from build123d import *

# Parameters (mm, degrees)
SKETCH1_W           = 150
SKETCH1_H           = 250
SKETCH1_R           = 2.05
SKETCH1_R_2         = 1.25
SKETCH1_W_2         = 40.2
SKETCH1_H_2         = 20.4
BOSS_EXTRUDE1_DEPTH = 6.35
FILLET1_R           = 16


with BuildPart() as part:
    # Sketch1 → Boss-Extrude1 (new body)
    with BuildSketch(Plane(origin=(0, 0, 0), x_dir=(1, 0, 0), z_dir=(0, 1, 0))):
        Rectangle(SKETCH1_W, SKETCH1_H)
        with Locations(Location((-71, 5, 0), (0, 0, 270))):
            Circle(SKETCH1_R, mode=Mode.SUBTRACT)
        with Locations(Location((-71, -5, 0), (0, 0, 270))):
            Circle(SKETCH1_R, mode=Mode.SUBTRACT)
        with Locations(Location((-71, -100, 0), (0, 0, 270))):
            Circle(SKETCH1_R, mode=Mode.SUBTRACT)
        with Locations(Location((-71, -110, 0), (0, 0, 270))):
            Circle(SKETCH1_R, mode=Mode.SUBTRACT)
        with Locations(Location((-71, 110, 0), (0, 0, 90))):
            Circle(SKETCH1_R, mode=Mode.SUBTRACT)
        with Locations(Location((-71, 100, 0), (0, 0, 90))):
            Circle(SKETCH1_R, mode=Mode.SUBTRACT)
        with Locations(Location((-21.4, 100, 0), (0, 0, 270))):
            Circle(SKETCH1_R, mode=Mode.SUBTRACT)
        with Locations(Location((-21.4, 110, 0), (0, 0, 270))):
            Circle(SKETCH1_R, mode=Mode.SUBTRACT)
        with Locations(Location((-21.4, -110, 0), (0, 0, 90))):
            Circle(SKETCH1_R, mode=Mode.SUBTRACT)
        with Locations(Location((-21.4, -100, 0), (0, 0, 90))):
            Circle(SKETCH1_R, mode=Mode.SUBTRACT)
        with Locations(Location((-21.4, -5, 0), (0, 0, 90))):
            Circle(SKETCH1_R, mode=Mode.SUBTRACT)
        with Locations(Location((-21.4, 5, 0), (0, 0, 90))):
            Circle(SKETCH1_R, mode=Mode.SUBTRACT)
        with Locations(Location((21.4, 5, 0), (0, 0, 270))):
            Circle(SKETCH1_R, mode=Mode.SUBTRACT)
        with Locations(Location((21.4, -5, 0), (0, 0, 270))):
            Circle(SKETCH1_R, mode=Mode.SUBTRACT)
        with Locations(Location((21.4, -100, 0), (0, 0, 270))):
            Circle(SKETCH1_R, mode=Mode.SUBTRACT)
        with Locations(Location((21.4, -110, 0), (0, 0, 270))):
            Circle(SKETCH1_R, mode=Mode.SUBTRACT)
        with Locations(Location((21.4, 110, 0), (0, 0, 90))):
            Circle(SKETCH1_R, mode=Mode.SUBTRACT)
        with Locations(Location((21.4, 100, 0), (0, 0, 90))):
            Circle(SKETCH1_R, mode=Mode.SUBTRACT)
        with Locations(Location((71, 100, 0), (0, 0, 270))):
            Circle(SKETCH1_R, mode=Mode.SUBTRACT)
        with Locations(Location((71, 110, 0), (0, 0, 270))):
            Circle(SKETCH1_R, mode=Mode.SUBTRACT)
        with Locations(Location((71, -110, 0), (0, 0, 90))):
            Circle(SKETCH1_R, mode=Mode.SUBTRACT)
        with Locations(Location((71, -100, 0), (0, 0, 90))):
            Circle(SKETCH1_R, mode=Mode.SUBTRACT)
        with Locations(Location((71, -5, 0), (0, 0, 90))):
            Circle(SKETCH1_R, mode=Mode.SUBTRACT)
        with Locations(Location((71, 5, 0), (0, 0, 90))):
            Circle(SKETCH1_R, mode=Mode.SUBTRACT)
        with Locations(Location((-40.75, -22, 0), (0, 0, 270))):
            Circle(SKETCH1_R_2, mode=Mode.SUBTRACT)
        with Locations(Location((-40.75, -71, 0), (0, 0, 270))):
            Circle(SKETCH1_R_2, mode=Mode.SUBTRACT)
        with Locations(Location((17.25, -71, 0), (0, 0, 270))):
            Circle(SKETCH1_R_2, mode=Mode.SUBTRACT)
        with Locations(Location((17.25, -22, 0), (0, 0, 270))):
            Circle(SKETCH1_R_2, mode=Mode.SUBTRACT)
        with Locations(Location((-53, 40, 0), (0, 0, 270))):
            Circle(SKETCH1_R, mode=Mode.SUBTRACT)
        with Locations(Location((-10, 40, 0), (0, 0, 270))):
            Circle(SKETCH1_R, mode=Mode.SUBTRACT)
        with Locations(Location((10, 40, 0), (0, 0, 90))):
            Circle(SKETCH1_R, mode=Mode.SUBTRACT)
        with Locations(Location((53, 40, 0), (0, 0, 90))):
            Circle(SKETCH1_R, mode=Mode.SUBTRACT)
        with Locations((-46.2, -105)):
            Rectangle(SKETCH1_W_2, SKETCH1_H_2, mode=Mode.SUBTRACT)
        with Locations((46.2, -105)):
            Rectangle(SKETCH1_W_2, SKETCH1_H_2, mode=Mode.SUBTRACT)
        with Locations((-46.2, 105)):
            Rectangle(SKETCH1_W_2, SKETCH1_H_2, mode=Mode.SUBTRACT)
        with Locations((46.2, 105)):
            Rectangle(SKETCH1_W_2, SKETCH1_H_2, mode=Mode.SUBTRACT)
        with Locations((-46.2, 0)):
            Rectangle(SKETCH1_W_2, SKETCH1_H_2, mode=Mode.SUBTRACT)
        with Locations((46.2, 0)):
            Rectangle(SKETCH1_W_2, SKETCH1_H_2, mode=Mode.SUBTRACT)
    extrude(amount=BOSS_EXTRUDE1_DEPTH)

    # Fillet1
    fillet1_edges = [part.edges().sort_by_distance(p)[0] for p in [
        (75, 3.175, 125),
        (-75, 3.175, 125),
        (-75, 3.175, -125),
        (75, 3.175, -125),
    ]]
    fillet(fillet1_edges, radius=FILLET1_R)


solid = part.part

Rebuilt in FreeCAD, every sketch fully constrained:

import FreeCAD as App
import Part
import Sketcher

V = App.Vector


def edges_at(feature, points):
    """Names of the edges that pass closest to the given points."""
    edges = feature.Shape.Edges
    near = lambda p: min(range(len(edges)), key=lambda i: edges[i].distToShape(Part.Vertex(*p))[0])
    return sorted({f"Edge{near(p) + 1}" for p in points})


def add_polygon(sketch, points):
    """Adds a closed chain of lines whose ends are joined by coincident constraints."""
    first, n = sketch.GeometryCount, len(points)
    for a, b in zip(points, points[1:] + points[:1]):
        sketch.addGeometry(Part.LineSegment(App.Vector(*a, 0), App.Vector(*b, 0)), False)
    for i in range(n):
        sketch.addConstraint(Sketcher.Constraint("Coincident", first + i, 2, first + (i + 1) % n, 1))

doc = App.newDocument("Part")
body = doc.addObject("PartDesign::Body", "Body")

# Sketch on XZ plane
sketch1 = body.newObject("Sketcher::SketchObject", "Sketch")
sketch1.AttachmentSupport = (doc.getObject("XZ_Plane"), [""])
sketch1.MapMode = "FlatFace"
add_polygon(sketch1, [(-75, -125), (-75, 125), (75, 125), (75, -125)])  # lines 0-3
sketch1.addGeometry(Part.Circle(V(-71, 110, 0), V(0, 0, 1), 2), False)  # 4
sketch1.addGeometry(Part.Circle(V(-71, 100, 0), V(0, 0, 1), 2), False)  # 5
add_polygon(sketch1, [(-26.1, 115.2), (-66.3, 115.2), (-66.3, 94.8), (-26.1, 94.8)])  # lines 6-9
sketch1.addGeometry(Part.Circle(V(-40.8, 71, 0), V(0, 0, 1), 1.2), False)  # 10
sketch1.addGeometry(Part.Circle(V(-21.4, 110, 0), V(0, 0, 1), 2), False)  # 11
sketch1.addGeometry(Part.Circle(V(-21.4, 100, 0), V(0, 0, 1), 2), False)  # 12
sketch1.addGeometry(Part.Circle(V(-71, 5, 0), V(0, 0, 1), 2), False)  # 13
sketch1.addGeometry(Part.Circle(V(-40.8, 22, 0), V(0, 0, 1), 1.2), False)  # 14
sketch1.addGeometry(Part.Circle(V(-21.4, 5, 0), V(0, 0, 1), 2), False)  # 15
sketch1.addGeometry(Part.Circle(V(21.4, 110, 0), V(0, 0, 1), 2), False)  # 16
sketch1.addGeometry(Part.Circle(V(21.4, 100, 0), V(0, 0, 1), 2), False)  # 17
sketch1.addGeometry(Part.Circle(V(17.2, 71, 0), V(0, 0, 1), 1.2), False)  # 18
add_polygon(sketch1, [(66.3, 115.2), (26.1, 115.2), (26.1, 94.8), (66.3, 94.8)])  # lines 19-22
sketch1.addGeometry(Part.Circle(V(71, 110, 0), V(0, 0, 1), 2), False)  # 23
sketch1.addGeometry(Part.Circle(V(71, 100, 0), V(0, 0, 1), 2), False)  # 24
sketch1.addGeometry(Part.Circle(V(17.2, 22, 0), V(0, 0, 1), 1.2), False)  # 25
sketch1.addGeometry(Part.Circle(V(21.4, 5, 0), V(0, 0, 1), 2), False)  # 26
sketch1.addGeometry(Part.Circle(V(71, 5, 0), V(0, 0, 1), 2), False)  # 27
sketch1.addGeometry(Part.Circle(V(-71, -5, 0), V(0, 0, 1), 2), False)  # 28
add_polygon(sketch1, [(-26.1, 10.2), (-66.3, 10.2), (-66.3, -10.2), (-26.1, -10.2)])  # lines 29-32
sketch1.addGeometry(Part.Circle(V(-53, -40, 0), V(0, 0, 1), 2), False)  # 33
sketch1.addGeometry(Part.Circle(V(-21.4, -5, 0), V(0, 0, 1), 2), False)  # 34
sketch1.addGeometry(Part.Circle(V(-10, -40, 0), V(0, 0, 1), 2), False)  # 35
sketch1.addGeometry(Part.Circle(V(-71, -100, 0), V(0, 0, 1), 2), False)  # 36
sketch1.addGeometry(Part.Circle(V(-71, -110, 0), V(0, 0, 1), 2), False)  # 37
add_polygon(sketch1, [(-26.1, -94.8), (-66.3, -94.8), (-66.3, -115.2), (-26.1, -115.2)])  # lines 38-41
sketch1.addGeometry(Part.Circle(V(-21.4, -100, 0), V(0, 0, 1), 2), False)  # 42
sketch1.addGeometry(Part.Circle(V(-21.4, -110, 0), V(0, 0, 1), 2), False)  # 43
sketch1.addGeometry(Part.Circle(V(21.4, -5, 0), V(0, 0, 1), 2), False)  # 44
sketch1.addGeometry(Part.Circle(V(10, -40, 0), V(0, 0, 1), 2), False)  # 45
add_polygon(sketch1, [(66.3, 10.2), (26.1, 10.2), (26.1, -10.2), (66.3, -10.2)])  # lines 46-49
sketch1.addGeometry(Part.Circle(V(71, -5, 0), V(0, 0, 1), 2), False)  # 50
sketch1.addGeometry(Part.Circle(V(53, -40, 0), V(0, 0, 1), 2), False)  # 51
sketch1.addGeometry(Part.Circle(V(21.4, -100, 0), V(0, 0, 1), 2), False)  # 52
sketch1.addGeometry(Part.Circle(V(21.4, -110, 0), V(0, 0, 1), 2), False)  # 53
add_polygon(sketch1, [(66.3, -94.8), (26.1, -94.8), (26.1, -115.2), (66.3, -115.2)])  # lines 54-57
sketch1.addGeometry(Part.Circle(V(71, -100, 0), V(0, 0, 1), 2), False)  # 58
sketch1.addGeometry(Part.Circle(V(71, -110, 0), V(0, 0, 1), 2), False)  # 59
sketch1.addConstraint(Sketcher.Constraint("Vertical", 0))
sketch1.addConstraint(Sketcher.Constraint("Horizontal", 1))
sketch1.addConstraint(Sketcher.Constraint("Vertical", 2))
sketch1.addConstraint(Sketcher.Constraint("Horizontal", 3))
sketch1.addConstraint(Sketcher.Constraint("Horizontal", 6))
sketch1.addConstraint(Sketcher.Constraint("Vertical", 7))
sketch1.addConstraint(Sketcher.Constraint("Horizontal", 8))
sketch1.addConstraint(Sketcher.Constraint("Vertical", 9))
sketch1.addConstraint(Sketcher.Constraint("Horizontal", 19))
sketch1.addConstraint(Sketcher.Constraint("Vertical", 20))
sketch1.addConstraint(Sketcher.Constraint("Horizontal", 21))
sketch1.addConstraint(Sketcher.Constraint("Vertical", 22))
sketch1.addConstraint(Sketcher.Constraint("Horizontal", 29))
sketch1.addConstraint(Sketcher.Constraint("Vertical", 30))
sketch1.addConstraint(Sketcher.Constraint("Horizontal", 31))
sketch1.addConstraint(Sketcher.Constraint("Vertical", 32))
sketch1.addConstraint(Sketcher.Constraint("Horizontal", 38))
sketch1.addConstraint(Sketcher.Constraint("Vertical", 39))
sketch1.addConstraint(Sketcher.Constraint("Horizontal", 40))
sketch1.addConstraint(Sketcher.Constraint("Vertical", 41))
sketch1.addConstraint(Sketcher.Constraint("Horizontal", 46))
sketch1.addConstraint(Sketcher.Constraint("Vertical", 47))
sketch1.addConstraint(Sketcher.Constraint("Horizontal", 48))
sketch1.addConstraint(Sketcher.Constraint("Vertical", 49))
sketch1.addConstraint(Sketcher.Constraint("Horizontal", 54))
sketch1.addConstraint(Sketcher.Constraint("Vertical", 55))
sketch1.addConstraint(Sketcher.Constraint("Horizontal", 56))
sketch1.addConstraint(Sketcher.Constraint("Vertical", 57))
sketch1.addConstraint(Sketcher.Constraint("Equal", 4, 5))
sketch1.addConstraint(Sketcher.Constraint("Equal", 5, 11))
sketch1.addConstraint(Sketcher.Constraint("Equal", 11, 12))
sketch1.addConstraint(Sketcher.Constraint("Equal", 12, 13))
sketch1.addConstraint(Sketcher.Constraint("Equal", 10, 14))
sketch1.addConstraint(Sketcher.Constraint("Equal", 13, 15))
sketch1.addConstraint(Sketcher.Constraint("Equal", 15, 16))
sketch1.addConstraint(Sketcher.Constraint("Equal", 16, 17))
sketch1.addConstraint(Sketcher.Constraint("Equal", 14, 18))
sketch1.addConstraint(Sketcher.Constraint("Equal", 17, 23))
sketch1.addConstraint(Sketcher.Constraint("Equal", 23, 24))
sketch1.addConstraint(Sketcher.Constraint("Equal", 18, 25))
sketch1.addConstraint(Sketcher.Constraint("Equal", 24, 26))
sketch1.addConstraint(Sketcher.Constraint("Equal", 26, 27))
sketch1.addConstraint(Sketcher.Constraint("Equal", 27, 28))
sketch1.addConstraint(Sketcher.Constraint("Equal", 28, 33))
sketch1.addConstraint(Sketcher.Constraint("Equal", 33, 34))
sketch1.addConstraint(Sketcher.Constraint("Equal", 34, 35))
sketch1.addConstraint(Sketcher.Constraint("Equal", 35, 36))
sketch1.addConstraint(Sketcher.Constraint("Equal", 36, 37))
sketch1.addConstraint(Sketcher.Constraint("Equal", 37, 42))
sketch1.addConstraint(Sketcher.Constraint("Equal", 42, 43))
sketch1.addConstraint(Sketcher.Constraint("Equal", 43, 44))
sketch1.addConstraint(Sketcher.Constraint("Equal", 44, 45))
sketch1.addConstraint(Sketcher.Constraint("Equal", 45, 50))
sketch1.addConstraint(Sketcher.Constraint("Equal", 50, 51))
sketch1.addConstraint(Sketcher.Constraint("Equal", 51, 52))
sketch1.addConstraint(Sketcher.Constraint("Equal", 52, 53))
sketch1.addConstraint(Sketcher.Constraint("Equal", 53, 58))
sketch1.addConstraint(Sketcher.Constraint("Equal", 58, 59))
sketch1.addConstraint(Sketcher.Constraint("Symmetric", 27, 3, 28, 3, -1, 1))
sketch1.addConstraint(Sketcher.Constraint("Symmetric", 26, 3, 34, 3, -1, 1))
sketch1.addConstraint(Sketcher.Constraint("Symmetric", 24, 3, 36, 3, -1, 1))
sketch1.addConstraint(Sketcher.Constraint("Symmetric", 23, 3, 37, 3, -1, 1))
sketch1.addConstraint(Sketcher.Constraint("Symmetric", 17, 3, 42, 3, -1, 1))
sketch1.addConstraint(Sketcher.Constraint("Symmetric", 16, 3, 43, 3, -1, 1))
sketch1.addConstraint(Sketcher.Constraint("Symmetric", 15, 3, 44, 3, -1, 1))
sketch1.addConstraint(Sketcher.Constraint("Symmetric", 13, 3, 50, 3, -1, 1))
sketch1.addConstraint(Sketcher.Constraint("Symmetric", 12, 3, 52, 3, -1, 1))
sketch1.addConstraint(Sketcher.Constraint("Symmetric", 11, 3, 53, 3, -1, 1))
sketch1.addConstraint(Sketcher.Constraint("Symmetric", 5, 3, 58, 3, -1, 1))
sketch1.addConstraint(Sketcher.Constraint("Symmetric", 4, 3, 59, 3, -1, 1))
sketch1.addConstraint(Sketcher.Constraint("Symmetric", 0, 2, 2, 2, -1, 1))
sketch1.addConstraint(Sketcher.Constraint("Symmetric", 21, 2, 38, 2, -1, 1))
sketch1.addConstraint(Sketcher.Constraint("Symmetric", 19, 2, 40, 2, -1, 1))
sketch1.addConstraint(Sketcher.Constraint("Symmetric", 31, 2, 46, 2, -1, 1))
sketch1.addConstraint(Sketcher.Constraint("Symmetric", 29, 2, 48, 2, -1, 1))
sketch1.addConstraint(Sketcher.Constraint("Symmetric", 8, 2, 54, 2, -1, 1))
sketch1.addConstraint(Sketcher.Constraint("Symmetric", 6, 2, 56, 2, -1, 1))
sketch1.addConstraint(Sketcher.Constraint("Symmetric", 11, 3, 16, 3, -2))
sketch1.addConstraint(Sketcher.Constraint("Symmetric", 12, 3, 17, 3, -2))
sketch1.addConstraint(Sketcher.Constraint("Symmetric", 4, 3, 23, 3, -2))
sketch1.addConstraint(Sketcher.Constraint("Symmetric", 5, 3, 24, 3, -2))
sketch1.addConstraint(Sketcher.Constraint("Symmetric", 15, 3, 26, 3, -2))
sketch1.addConstraint(Sketcher.Constraint("Symmetric", 13, 3, 27, 3, -2))
sketch1.addConstraint(Sketcher.Constraint("Symmetric", 35, 3, 45, 3, -2))
sketch1.addConstraint(Sketcher.Constraint("Symmetric", 33, 3, 51, 3, -2))
sketch1.addConstraint(Sketcher.Constraint("Symmetric", 9, 2, 19, 2, -2))
sketch1.addConstraint(Sketcher.Constraint("Symmetric", 7, 2, 21, 2, -2))
sketch1.addConstraint(Sketcher.Constraint("Horizontal", 4, 3, 11, 3))
sketch1.addConstraint(Sketcher.Constraint("Horizontal", 5, 3, 12, 3))
sketch1.addConstraint(Sketcher.Constraint("Horizontal", 13, 3, 15, 3))
sketch1.addConstraint(Sketcher.Constraint("Horizontal", 10, 3, 18, 3))
sketch1.addConstraint(Sketcher.Constraint("Horizontal", 14, 3, 25, 3))
sketch1.addConstraint(Sketcher.Constraint("Horizontal", 33, 3, 35, 3))
sketch1.addConstraint(Sketcher.Constraint("Horizontal", 32, 2, 46, 2))
sketch1.addConstraint(Sketcher.Constraint("Vertical", 4, 3, 5, 3))
sketch1.addConstraint(Sketcher.Constraint("Vertical", 11, 3, 12, 3))
sketch1.addConstraint(Sketcher.Constraint("Vertical", 5, 3, 13, 3))
sketch1.addConstraint(Sketcher.Constraint("Vertical", 10, 3, 14, 3))
sketch1.addConstraint(Sketcher.Constraint("Vertical", 12, 3, 15, 3))
sketch1.addConstraint(Sketcher.Constraint("Vertical", 18, 3, 25, 3))
sketch1.addConstraint(Sketcher.Constraint("Vertical", 7, 2, 29, 2))
sketch1.addConstraint(Sketcher.Constraint("Vertical", 9, 2, 31, 2))
sketch1.addConstraint(Sketcher.Constraint("Equal", 22, 30))
sketch1.addConstraint(Sketcher.Constraint("Diameter", 4, 4.1))
sketch1.addConstraint(Sketcher.Constraint("Diameter", 10, 2.5))
sketch1.addConstraint(Sketcher.Constraint("DistanceX", 1, 1, 1, 2, 150.0))
sketch1.addConstraint(Sketcher.Constraint("DistanceY", 0, 1, 0, 2, 250.0))
sketch1.addConstraint(Sketcher.Constraint("DistanceX", 6, 2, 6, 1, 40.2))
sketch1.addConstraint(Sketcher.Constraint("DistanceY", 7, 2, 7, 1, 20.4))
sketch1.addConstraint(Sketcher.Constraint("DistanceX", 4, 3, -1, 1, 71.0))
sketch1.addConstraint(Sketcher.Constraint("DistanceY", -1, 1, 4, 3, 110.0))
sketch1.addConstraint(Sketcher.Constraint("DistanceY", -1, 1, 5, 3, 100.0))
sketch1.addConstraint(Sketcher.Constraint("DistanceY", -1, 1, 10, 3, 71.0))
sketch1.addConstraint(Sketcher.Constraint("DistanceY", -1, 1, 13, 3, 5.0))
sketch1.addConstraint(Sketcher.Constraint("DistanceY", -1, 1, 14, 3, 22.0))
sketch1.addConstraint(Sketcher.Constraint("DistanceX", 33, 3, -1, 1, 53.0))
sketch1.addConstraint(Sketcher.Constraint("DistanceY", 33, 3, -1, 1, 40.0))
sketch1.addConstraint(Sketcher.Constraint("DistanceX", 35, 3, -1, 1, 10.0))
sketch1.addConstraint(Sketcher.Constraint("DistanceX", 10, 3, 18, 3, 58.0))
sketch1.addConstraint(Sketcher.Constraint("DistanceX", 11, 3, -1, 1, 21.4))
sketch1.addConstraint(Sketcher.Constraint("DistanceX", 6, 2, -1, 1, 66.3))
sketch1.addConstraint(Sketcher.Constraint("DistanceY", -1, 1, 6, 2, 115.2))
sketch1.addConstraint(Sketcher.Constraint("DistanceX", 10, 3, -1, 1, 40.75))
pad1 = body.newObject("PartDesign::Pad", "Pad")
pad1.Profile = sketch1
pad1.Length = 6.35
pad1.Reversed = True
doc.recompute()

fillet = body.newObject("PartDesign::Fillet", "Fillet")
fillet.Base = (pad1, edges_at(pad1, [
    (75, 3.175, 125),
    (-75, 3.175, 125),
    (-75, 3.175, -125),
    (75, 3.175, -125),
]))
fillet.Radius = 16

doc.recompute()
